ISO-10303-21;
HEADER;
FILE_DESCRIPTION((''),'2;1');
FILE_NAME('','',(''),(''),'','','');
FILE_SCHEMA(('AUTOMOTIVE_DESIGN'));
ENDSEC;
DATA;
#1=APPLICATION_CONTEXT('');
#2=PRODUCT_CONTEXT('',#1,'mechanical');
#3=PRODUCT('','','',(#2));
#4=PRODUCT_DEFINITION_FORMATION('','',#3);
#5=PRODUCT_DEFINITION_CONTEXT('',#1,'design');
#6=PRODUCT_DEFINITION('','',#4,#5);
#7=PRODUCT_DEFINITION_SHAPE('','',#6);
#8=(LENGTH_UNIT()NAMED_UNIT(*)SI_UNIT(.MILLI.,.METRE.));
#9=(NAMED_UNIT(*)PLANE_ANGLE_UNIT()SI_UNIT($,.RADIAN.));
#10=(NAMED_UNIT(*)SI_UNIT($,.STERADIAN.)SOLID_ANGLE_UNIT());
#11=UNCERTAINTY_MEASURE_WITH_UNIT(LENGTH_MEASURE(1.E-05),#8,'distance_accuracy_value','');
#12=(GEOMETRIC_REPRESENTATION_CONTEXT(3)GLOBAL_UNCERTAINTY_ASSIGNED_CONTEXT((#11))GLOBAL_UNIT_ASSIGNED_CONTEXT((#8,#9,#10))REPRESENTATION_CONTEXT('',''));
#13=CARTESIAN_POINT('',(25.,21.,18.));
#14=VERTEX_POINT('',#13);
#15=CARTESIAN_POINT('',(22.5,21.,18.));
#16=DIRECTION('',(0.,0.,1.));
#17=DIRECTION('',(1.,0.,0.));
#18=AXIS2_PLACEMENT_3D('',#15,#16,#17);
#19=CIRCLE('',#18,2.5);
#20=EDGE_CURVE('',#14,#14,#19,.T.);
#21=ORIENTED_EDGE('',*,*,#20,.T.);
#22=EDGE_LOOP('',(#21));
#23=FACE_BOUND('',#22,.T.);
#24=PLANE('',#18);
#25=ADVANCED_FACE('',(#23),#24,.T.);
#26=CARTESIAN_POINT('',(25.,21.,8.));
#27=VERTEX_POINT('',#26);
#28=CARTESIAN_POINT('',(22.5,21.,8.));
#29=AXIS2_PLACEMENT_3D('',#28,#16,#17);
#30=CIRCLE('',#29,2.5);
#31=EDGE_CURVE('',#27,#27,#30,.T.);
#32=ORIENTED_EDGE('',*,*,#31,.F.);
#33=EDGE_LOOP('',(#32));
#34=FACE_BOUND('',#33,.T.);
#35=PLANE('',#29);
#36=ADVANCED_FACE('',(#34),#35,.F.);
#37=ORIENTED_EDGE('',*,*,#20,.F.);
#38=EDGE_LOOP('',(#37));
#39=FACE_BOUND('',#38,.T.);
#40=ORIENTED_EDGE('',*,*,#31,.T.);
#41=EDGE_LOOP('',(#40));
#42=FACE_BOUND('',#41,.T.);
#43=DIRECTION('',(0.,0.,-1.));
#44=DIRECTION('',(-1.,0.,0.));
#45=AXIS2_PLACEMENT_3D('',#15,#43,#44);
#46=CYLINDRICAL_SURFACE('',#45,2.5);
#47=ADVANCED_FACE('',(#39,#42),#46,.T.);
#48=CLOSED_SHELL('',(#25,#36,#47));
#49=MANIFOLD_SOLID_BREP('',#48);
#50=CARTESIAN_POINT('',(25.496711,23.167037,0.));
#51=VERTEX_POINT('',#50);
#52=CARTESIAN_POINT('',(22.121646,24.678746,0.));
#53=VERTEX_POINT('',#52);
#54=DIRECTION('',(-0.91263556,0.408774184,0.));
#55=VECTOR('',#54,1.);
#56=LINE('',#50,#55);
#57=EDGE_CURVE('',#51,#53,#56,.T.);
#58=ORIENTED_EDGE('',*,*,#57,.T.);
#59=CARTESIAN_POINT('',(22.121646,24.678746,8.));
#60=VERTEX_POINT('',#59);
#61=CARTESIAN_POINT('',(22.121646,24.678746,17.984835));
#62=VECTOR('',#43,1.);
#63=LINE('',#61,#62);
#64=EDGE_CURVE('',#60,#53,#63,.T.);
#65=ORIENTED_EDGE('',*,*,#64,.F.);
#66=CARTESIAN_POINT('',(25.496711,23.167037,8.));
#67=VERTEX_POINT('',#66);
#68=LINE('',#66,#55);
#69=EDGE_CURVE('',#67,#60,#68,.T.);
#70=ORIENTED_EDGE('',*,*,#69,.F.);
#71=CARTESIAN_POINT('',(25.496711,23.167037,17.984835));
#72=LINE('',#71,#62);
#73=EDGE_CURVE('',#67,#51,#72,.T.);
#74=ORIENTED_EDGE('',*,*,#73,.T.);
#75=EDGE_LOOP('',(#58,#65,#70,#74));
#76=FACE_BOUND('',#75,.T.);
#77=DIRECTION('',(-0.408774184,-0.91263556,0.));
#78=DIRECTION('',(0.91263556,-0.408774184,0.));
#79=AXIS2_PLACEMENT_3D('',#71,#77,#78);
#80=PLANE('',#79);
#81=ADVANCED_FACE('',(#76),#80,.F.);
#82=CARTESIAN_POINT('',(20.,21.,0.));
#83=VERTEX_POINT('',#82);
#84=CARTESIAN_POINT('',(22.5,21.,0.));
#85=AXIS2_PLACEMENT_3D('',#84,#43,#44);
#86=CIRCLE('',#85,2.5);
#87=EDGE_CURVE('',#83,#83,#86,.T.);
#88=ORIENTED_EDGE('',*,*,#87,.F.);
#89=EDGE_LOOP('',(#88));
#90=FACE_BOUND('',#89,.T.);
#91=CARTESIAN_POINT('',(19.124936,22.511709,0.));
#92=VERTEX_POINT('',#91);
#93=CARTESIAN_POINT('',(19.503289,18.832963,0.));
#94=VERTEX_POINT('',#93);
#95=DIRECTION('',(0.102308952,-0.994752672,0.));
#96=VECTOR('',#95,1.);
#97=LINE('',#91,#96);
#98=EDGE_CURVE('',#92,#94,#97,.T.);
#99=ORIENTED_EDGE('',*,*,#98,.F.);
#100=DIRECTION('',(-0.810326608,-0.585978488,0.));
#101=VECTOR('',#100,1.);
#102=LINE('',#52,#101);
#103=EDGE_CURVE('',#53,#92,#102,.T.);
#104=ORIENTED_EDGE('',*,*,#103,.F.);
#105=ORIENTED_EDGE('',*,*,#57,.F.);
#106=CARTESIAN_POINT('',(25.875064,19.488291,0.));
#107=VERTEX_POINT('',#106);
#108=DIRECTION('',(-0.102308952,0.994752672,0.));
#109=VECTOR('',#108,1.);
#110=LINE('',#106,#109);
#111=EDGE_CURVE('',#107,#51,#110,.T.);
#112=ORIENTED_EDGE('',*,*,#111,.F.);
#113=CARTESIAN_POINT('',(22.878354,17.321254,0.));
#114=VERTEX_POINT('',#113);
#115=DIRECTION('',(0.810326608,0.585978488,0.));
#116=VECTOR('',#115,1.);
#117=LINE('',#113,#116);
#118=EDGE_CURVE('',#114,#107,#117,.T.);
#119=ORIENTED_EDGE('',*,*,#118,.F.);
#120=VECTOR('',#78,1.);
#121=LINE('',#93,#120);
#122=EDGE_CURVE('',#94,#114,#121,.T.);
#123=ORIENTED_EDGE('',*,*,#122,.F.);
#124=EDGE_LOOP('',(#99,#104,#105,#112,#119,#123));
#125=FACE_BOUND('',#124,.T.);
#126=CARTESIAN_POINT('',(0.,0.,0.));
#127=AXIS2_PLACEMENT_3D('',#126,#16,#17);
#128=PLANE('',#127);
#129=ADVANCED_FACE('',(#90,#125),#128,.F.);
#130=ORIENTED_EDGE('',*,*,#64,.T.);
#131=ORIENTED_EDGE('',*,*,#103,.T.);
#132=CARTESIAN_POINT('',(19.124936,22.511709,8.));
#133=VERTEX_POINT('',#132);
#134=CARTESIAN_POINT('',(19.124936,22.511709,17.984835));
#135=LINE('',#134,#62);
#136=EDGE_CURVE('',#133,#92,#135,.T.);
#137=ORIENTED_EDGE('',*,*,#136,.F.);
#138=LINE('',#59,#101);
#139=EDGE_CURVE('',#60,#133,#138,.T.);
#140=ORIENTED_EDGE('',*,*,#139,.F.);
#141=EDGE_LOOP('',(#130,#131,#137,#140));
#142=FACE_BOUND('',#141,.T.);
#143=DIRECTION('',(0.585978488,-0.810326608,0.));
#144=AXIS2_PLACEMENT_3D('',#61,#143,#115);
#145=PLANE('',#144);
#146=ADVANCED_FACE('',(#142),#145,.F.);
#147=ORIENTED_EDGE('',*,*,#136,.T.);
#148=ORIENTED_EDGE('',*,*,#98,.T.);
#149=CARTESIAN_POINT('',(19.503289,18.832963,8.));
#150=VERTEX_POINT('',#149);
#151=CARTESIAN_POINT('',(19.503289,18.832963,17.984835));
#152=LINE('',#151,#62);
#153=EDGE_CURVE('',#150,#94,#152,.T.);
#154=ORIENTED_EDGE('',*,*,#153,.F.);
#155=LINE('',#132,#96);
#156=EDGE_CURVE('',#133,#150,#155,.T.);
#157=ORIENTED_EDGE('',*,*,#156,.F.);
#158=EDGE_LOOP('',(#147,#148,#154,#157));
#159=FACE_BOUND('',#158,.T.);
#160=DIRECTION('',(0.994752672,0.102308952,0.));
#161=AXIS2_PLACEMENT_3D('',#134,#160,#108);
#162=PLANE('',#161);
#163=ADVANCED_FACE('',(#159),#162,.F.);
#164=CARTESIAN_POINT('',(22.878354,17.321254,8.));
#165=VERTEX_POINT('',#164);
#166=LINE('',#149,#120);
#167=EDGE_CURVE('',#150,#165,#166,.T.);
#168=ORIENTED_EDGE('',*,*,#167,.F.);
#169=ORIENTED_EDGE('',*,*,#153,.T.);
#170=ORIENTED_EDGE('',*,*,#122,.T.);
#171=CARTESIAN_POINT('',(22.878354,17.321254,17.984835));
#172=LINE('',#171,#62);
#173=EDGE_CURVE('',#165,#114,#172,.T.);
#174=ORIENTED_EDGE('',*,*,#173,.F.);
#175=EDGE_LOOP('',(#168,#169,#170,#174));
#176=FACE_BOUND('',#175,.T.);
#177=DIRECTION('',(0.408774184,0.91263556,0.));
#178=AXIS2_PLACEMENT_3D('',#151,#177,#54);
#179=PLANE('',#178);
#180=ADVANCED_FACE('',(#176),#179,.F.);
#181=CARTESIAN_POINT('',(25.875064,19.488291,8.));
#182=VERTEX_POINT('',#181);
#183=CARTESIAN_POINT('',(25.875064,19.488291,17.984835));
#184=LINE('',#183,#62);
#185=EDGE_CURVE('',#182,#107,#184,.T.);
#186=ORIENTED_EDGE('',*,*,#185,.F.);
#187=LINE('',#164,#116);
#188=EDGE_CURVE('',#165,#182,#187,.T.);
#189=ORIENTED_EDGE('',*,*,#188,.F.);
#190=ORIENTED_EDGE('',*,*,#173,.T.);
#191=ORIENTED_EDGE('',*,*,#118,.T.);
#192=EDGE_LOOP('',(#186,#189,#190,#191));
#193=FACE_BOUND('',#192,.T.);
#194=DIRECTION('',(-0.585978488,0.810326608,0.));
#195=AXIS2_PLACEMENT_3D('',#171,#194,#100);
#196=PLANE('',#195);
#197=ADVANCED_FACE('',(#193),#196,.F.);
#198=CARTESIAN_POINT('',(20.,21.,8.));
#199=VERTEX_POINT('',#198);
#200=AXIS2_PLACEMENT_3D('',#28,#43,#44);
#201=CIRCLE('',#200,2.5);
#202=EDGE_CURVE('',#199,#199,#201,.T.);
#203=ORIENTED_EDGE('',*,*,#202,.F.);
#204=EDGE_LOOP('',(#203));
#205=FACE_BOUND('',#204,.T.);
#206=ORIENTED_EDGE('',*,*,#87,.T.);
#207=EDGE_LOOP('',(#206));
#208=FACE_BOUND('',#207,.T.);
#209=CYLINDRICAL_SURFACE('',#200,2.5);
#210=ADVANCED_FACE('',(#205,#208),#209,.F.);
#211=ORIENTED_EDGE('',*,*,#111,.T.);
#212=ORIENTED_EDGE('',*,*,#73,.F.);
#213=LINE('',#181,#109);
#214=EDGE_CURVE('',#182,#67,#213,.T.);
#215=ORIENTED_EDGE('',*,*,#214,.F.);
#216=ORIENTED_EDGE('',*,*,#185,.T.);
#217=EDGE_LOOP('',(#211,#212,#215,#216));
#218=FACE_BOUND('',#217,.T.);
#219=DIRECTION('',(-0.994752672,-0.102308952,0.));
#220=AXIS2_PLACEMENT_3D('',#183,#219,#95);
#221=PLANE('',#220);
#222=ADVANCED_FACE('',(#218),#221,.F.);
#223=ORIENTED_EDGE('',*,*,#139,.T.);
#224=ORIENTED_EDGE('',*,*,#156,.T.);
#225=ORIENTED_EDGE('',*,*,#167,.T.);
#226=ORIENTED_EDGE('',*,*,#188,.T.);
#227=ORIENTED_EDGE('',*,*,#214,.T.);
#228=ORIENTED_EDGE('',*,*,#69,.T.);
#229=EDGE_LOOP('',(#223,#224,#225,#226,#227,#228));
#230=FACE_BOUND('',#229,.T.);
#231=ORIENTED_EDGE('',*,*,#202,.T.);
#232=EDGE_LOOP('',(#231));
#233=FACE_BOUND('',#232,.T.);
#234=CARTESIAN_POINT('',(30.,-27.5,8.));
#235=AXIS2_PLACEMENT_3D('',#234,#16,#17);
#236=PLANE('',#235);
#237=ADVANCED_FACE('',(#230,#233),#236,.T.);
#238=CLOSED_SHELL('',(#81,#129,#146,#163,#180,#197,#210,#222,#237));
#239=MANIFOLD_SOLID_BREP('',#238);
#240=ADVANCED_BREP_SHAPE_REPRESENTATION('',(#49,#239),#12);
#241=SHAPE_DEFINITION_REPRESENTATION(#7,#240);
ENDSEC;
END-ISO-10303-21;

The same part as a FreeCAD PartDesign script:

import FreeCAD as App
import Part
import Sketcher
Q = App.Units.Quantity


def add_polygon(sketch, points):
    """Adds a closed chain of lines whose ends are joined by coincident constraints."""
    first, n = sketch.GeometryCount, len(points)
    for a, b in zip(points, points[1:] + points[:1]):
        sketch.addGeometry(Part.LineSegment(App.Vector(*a, 0), App.Vector(*b, 0)), False)
    for i in range(n):
        sketch.addConstraint(Sketcher.Constraint("Coincident", first + i, 2, first + (i + 1) % n, 1))

doc = App.newDocument("Part")
body = doc.addObject("PartDesign::Body", "Body")

# Sketch on XY plane
sketch1 = doc.addObject("Sketcher::SketchObject", "Sketch")
body.addObject(sketch1)
sketch1.AttachmentSupport = (doc.XY_Plane, [""])
sketch1.MapMode = "FlatFace"
add_polygon(sketch1, [(22.1, 24.7), (19.1, 22.5), (19.5, 18.8), (22.9, 17.3), (25.9, 19.5), (25.5, 23.2)])  # lines 0-5
sketch1.addConstraint([
    Sketcher.Constraint("Parallel", 0, 3),
    Sketcher.Constraint("Parallel", 1, 4),
    Sketcher.Constraint("Parallel", 2, 5),
    Sketcher.Constraint("Equal", 0, 1),
    Sketcher.Constraint("Equal", 1, 2),
    Sketcher.Constraint("Equal", 2, 3),
    Sketcher.Constraint("Distance", 0, Q("3.698151 mm")),
    Sketcher.Constraint("DistanceY", -1, 1, 0, 2, Q("22.511709 mm")),
    Sketcher.Constraint("DistanceX", -1, 1, 1, 2, Q("19.503289 mm")),
    Sketcher.Constraint("DistanceY", -1, 1, 3, 2, Q("19.488291 mm")),
    Sketcher.Constraint("DistanceX", -1, 1, 4, 2, Q("25.496711 mm")),
    Sketcher.Constraint("DistanceY", 2, 2, 1, 2, Q("1.511709 mm")),
])
pad1 = doc.addObject("PartDesign::Pad", "Pad")
body.addObject(pad1)
pad1.Profile = sketch1
pad1.Length = 8

# Sketch on XY plane
sketch2 = doc.addObject("Sketcher::SketchObject", "Sketch001")
body.addObject(sketch2)
sketch2.AttachmentSupport = (doc.XY_Plane, [""])
sketch2.MapMode = "FlatFace"
sketch2.addGeometry(Part.Circle(App.Vector(22.5, 21, 0), App.Vector(0, 0, 1), 2.5), False)
sketch2.addConstraint([
    Sketcher.Constraint("Diameter", 0, Q("5 mm")),
    Sketcher.Constraint("DistanceY", -1, 1, 0, 3, Q("21 mm")),
    Sketcher.Constraint("DistanceX", -1, 1, 0, 3, Q("22.5 mm")),
])
pocket1 = doc.addObject("PartDesign::Pocket", "Pocket")
body.addObject(pocket1)
pocket1.Profile = sketch2
pocket1.Length = 8
pocket1.Reversed = True
body2 = doc.addObject("PartDesign::Body", "Body001")

# Sketch on XY plane
sketch3 = doc.addObject("Sketcher::SketchObject", "Sketch002")
body2.addObject(sketch3)
sketch3.AttachmentSupport = (doc.getObject("XY_Plane001"), [""])
sketch3.MapMode = "FlatFace"
sketch3.AttachmentOffset = App.Placement(App.Vector(0, 0, 8), App.Rotation())
sketch3.addGeometry(Part.Circle(App.Vector(22.5, 21, 0), App.Vector(0, 0, 1), 2.5), False)
sketch3.addConstraint([
    Sketcher.Constraint("Diameter", 0, Q("5 mm")),
    Sketcher.Constraint("DistanceY", -1, 1, 0, 3, Q("21 mm")),
    Sketcher.Constraint("DistanceX", -1, 1, 0, 3, Q("22.5 mm")),
])
pad2 = doc.addObject("PartDesign::Pad", "Pad001")
body2.addObject(pad2)
pad2.Profile = sketch3
pad2.Length = 10

doc.recompute()
